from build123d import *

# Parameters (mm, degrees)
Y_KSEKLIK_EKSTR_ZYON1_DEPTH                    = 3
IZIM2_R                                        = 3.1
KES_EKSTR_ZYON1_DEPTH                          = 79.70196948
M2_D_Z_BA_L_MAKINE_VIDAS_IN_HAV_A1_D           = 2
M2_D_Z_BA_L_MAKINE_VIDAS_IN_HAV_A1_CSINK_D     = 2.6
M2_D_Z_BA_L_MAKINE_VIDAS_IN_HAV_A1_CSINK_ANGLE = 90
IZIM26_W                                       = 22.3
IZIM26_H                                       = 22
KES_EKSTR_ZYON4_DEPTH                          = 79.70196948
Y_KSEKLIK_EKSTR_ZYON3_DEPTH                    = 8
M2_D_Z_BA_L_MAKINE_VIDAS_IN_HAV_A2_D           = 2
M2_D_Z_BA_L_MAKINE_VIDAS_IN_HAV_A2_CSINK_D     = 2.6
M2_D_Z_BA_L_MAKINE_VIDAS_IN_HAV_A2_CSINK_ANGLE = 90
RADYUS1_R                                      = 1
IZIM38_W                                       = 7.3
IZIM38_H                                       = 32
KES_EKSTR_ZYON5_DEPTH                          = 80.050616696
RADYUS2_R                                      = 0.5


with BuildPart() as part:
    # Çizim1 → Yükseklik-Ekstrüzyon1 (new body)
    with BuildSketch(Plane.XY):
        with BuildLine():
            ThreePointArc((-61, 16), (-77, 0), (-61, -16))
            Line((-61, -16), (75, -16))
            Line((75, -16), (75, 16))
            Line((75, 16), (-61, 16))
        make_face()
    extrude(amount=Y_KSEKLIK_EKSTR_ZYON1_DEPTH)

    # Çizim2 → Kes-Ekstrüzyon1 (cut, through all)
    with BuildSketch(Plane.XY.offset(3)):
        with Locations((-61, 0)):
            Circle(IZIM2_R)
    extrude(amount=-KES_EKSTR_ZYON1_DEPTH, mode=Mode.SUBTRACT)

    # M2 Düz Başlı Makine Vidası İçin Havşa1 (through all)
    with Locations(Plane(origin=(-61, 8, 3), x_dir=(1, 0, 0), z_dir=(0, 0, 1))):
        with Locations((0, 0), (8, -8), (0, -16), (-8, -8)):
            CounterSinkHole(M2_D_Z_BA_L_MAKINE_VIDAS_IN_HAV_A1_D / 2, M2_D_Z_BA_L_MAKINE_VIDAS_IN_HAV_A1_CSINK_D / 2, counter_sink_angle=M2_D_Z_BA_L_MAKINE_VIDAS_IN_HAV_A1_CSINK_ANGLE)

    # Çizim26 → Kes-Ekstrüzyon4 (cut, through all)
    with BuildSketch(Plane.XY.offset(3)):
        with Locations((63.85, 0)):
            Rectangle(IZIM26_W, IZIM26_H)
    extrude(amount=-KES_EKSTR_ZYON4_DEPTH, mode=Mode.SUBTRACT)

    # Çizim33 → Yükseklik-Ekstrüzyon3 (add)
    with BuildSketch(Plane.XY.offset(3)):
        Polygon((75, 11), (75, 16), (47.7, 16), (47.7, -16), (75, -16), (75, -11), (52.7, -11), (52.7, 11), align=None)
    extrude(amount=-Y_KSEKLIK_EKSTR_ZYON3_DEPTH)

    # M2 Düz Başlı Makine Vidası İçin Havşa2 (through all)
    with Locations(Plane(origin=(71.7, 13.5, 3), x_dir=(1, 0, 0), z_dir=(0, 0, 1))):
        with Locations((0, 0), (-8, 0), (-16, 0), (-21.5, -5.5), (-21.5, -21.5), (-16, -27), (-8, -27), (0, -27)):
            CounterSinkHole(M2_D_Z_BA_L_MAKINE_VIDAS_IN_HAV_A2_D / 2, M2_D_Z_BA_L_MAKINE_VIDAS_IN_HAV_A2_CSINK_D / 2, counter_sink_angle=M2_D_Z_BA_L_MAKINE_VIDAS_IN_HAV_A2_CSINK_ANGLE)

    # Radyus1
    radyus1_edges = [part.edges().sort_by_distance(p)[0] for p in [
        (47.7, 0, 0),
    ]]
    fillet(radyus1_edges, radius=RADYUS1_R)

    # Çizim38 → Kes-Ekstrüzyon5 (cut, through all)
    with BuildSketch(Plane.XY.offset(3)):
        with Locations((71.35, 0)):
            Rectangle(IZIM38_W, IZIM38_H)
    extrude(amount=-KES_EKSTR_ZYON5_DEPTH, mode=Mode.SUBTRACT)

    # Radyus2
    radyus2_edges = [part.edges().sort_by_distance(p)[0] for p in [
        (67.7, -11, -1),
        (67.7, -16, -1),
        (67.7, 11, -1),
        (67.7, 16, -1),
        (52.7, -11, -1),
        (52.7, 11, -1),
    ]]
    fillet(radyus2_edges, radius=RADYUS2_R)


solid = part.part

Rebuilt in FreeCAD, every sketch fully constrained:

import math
import FreeCAD as App
import Part
import Sketcher
Q = App.Units.Quantity


def edges_at(feature, points):
    """Names of the edges that pass closest to the given points."""
    edges = feature.Shape.Edges
    near = lambda p: min(range(len(edges)), key=lambda i: edges[i].distToShape(Part.Vertex(*p))[0])
    return sorted({f"Edge{near(p) + 1}" for p in points})

doc = App.newDocument("Part")
body = doc.addObject("PartDesign::Body", "Body")

# Sketch on XY plane
sketch1 = doc.addObject("Sketcher::SketchObject", "Sketch")
body.addObject(sketch1)
sketch1.AttachmentSupport = (doc.XY_Plane, [""])
sketch1.MapMode = "FlatFace"
sketch1.addGeometry(Part.ArcOfCircle(Part.Circle(App.Vector(-61, 0, 0), App.Vector(0, 0, 1), 16), math.radians(90), math.radians(270)), False)
sketch1.addGeometry(Part.LineSegment(App.Vector(-61, -16, 0), App.Vector(75, -16, 0)), False)
sketch1.addGeometry(Part.LineSegment(App.Vector(75, -16, 0), App.Vector(75, 16, 0)), False)
sketch1.addGeometry(Part.LineSegment(App.Vector(75, 16, 0), App.Vector(-61, 16, 0)), False)
sketch1.addConstraint(Sketcher.Constraint("Tangent", 0, 2, 1, 1))
sketch1.addConstraint(Sketcher.Constraint("Coincident", 1, 2, 2, 1))
sketch1.addConstraint(Sketcher.Constraint("Coincident", 2, 2, 3, 1))
sketch1.addConstraint(Sketcher.Constraint("Tangent", 3, 2, 0, 1))
sketch1.addConstraint(Sketcher.Constraint("Horizontal", 1))
sketch1.addConstraint(Sketcher.Constraint("Vertical", 2))
sketch1.addConstraint(Sketcher.Constraint("Horizontal", 3))
sketch1.addConstraint(Sketcher.Constraint("PointOnObject", 0, 3, -1))
sketch1.addConstraint(Sketcher.Constraint("Radius", 0, Q("16 mm")))
sketch1.addConstraint(Sketcher.Constraint("DistanceX", 1, 1, 1, 2, Q("136 mm")))
sketch1.addConstraint(Sketcher.Constraint("DistanceX", 0, 3, -1, 1, Q("61 mm")))
pad1 = doc.addObject("PartDesign::Pad", "Pad")
body.addObject(pad1)
pad1.Profile = sketch1
pad1.Length = 3

# Sketch on XY plane
sketch2 = doc.addObject("Sketcher::SketchObject", "Sketch001")
body.addObject(sketch2)
sketch2.AttachmentSupport = (doc.XY_Plane, [""])
sketch2.MapMode = "FlatFace"
sketch2.AttachmentOffset = App.Placement(App.Vector(0, 0, 3), App.Rotation())
sketch2.addGeometry(Part.Circle(App.Vector(-61, 0, 0), App.Vector(0, 0, 1), 3.1), False)
sketch2.addConstraint(Sketcher.Constraint("PointOnObject", 0, 3, -1))
sketch2.addConstraint(Sketcher.Constraint("Diameter", 0, Q("6.2 mm")))
sketch2.addConstraint(Sketcher.Constraint("DistanceX", 0, 3, -1, 1, Q("61 mm")))
pocket1 = doc.addObject("PartDesign::Pocket", "Pocket")
body.addObject(pocket1)
pocket1.Profile = sketch2
pocket1.Type = "ThroughAll"

# Sketch on XY plane
sketch3 = doc.addObject("Sketcher::SketchObject", "Sketch002")
body.addObject(sketch3)
sketch3.AttachmentSupport = (doc.XY_Plane, [""])
sketch3.MapMode = "FlatFace"
sketch3.AttachmentOffset = App.Placement(App.Vector(0, 0, 3), App.Rotation())
sketch3.addGeometry(Part.Circle(App.Vector(-61, 8, 0), App.Vector(0, 0, 1), 1), False)
sketch3.addGeometry(Part.Circle(App.Vector(-53, 0, 0), App.Vector(0, 0, 1), 1), False)
sketch3.addGeometry(Part.Circle(App.Vector(-61, -8, 0), App.Vector(0, 0, 1), 1), False)
sketch3.addGeometry(Part.Circle(App.Vector(-69, 0, 0), App.Vector(0, 0, 1), 1), False)
sketch3.addConstraint(Sketcher.Constraint("Equal", 0, 1))
sketch3.addConstraint(Sketcher.Constraint("Equal", 1, 2))
sketch3.addConstraint(Sketcher.Constraint("Equal", 2, 3))
sketch3.addConstraint(Sketcher.Constraint("Symmetric", 0, 3, 2, 3, -1))
sketch3.addConstraint(Sketcher.Constraint("PointOnObject", 1, 3, -1))
sketch3.addConstraint(Sketcher.Constraint("PointOnObject", 3, 3, -1))
sketch3.addConstraint(Sketcher.Constraint("Diameter", 0, Q("2 mm")))
sketch3.addConstraint(Sketcher.Constraint("DistanceX", 0, 3, -1, 1, Q("61 mm")))
sketch3.addConstraint(Sketcher.Constraint("DistanceY", -1, 1, 0, 3, Q("8 mm")))
sketch3.addConstraint(Sketcher.Constraint("DistanceX", 1, 3, -1, 1, Q("53 mm")))
sketch3.addConstraint(Sketcher.Constraint("DistanceX", 3, 3, -1, 1, Q("69 mm")))
doc.recompute()
hole = doc.addObject("PartDesign::Hole", "Hole")
body.addObject(hole)
hole.Profile = sketch3
hole.ThreadType = "None"
hole.Diameter = 2
hole.DepthType = "ThroughAll"
hole.HoleCutType = "Countersink"
hole.HoleCutDiameter = 2.6
hole.HoleCutCountersinkAngle = 90

# Sketch on XY plane
sketch4 = doc.addObject("Sketcher::SketchObject", "Sketch003")
body.addObject(sketch4)
sketch4.AttachmentSupport = (doc.XY_Plane, [""])
sketch4.MapMode = "FlatFace"
sketch4.AttachmentOffset = App.Placement(App.Vector(0, 0, 3), App.Rotation())
sketch4.addGeometry(Part.LineSegment(App.Vector(52.7, 11, 0), App.Vector(52.7, -11, 0)), False)
sketch4.addGeometry(Part.LineSegment(App.Vector(52.7, -11, 0), App.Vector(75, -11, 0)), False)
sketch4.addGeometry(Part.LineSegment(App.Vector(75, -11, 0), App.Vector(75, 11, 0)), False)
sketch4.addGeometry(Part.LineSegment(App.Vector(75, 11, 0), App.Vector(52.7, 11, 0)), False)
sketch4.addConstraint(Sketcher.Constraint("Coincident", 0, 2, 1, 1))
sketch4.addConstraint(Sketcher.Constraint("Coincident", 1, 2, 2, 1))
sketch4.addConstraint(Sketcher.Constraint("Coincident", 2, 2, 3, 1))
sketch4.addConstraint(Sketcher.Constraint("Coincident", 3, 2, 0, 1))
sketch4.addConstraint(Sketcher.Constraint("Vertical", 0))
sketch4.addConstraint(Sketcher.Constraint("Horizontal", 1))
sketch4.addConstraint(Sketcher.Constraint("Vertical", 2))
sketch4.addConstraint(Sketcher.Constraint("Horizontal", 3))
sketch4.addConstraint(Sketcher.Constraint("DistanceY", 0, 2, 0, 1, Q("22 mm")))
sketch4.addConstraint(Sketcher.Constraint("DistanceX", 1, 1, 1, 2, Q("22.3 mm")))
sketch4.addConstraint(Sketcher.Constraint("DistanceY", 0, 2, -1, 1, Q("11 mm")))
sketch4.addConstraint(Sketcher.Constraint("DistanceX", -1, 1, 1, 2, Q("75 mm")))
pocket2 = doc.addObject("PartDesign::Pocket", "Pocket001")
body.addObject(pocket2)
pocket2.Profile = sketch4
pocket2.Type = "ThroughAll"

# Sketch on XY plane
sketch5 = doc.addObject("Sketcher::SketchObject", "Sketch004")
body.addObject(sketch5)
sketch5.AttachmentSupport = (doc.XY_Plane, [""])
sketch5.MapMode = "FlatFace"
sketch5.AttachmentOffset = App.Placement(App.Vector(0, 0, 3), App.Rotation())
sketch5.addGeometry(Part.LineSegment(App.Vector(75, 11, 0), App.Vector(75, 16, 0)), False)
sketch5.addGeometry(Part.LineSegment(App.Vector(75, 16, 0), App.Vector(47.7, 16, 0)), False)
sketch5.addGeometry(Part.LineSegment(App.Vector(47.7, 16, 0), App.Vector(47.7, -16, 0)), False)
sketch5.addGeometry(Part.LineSegment(App.Vector(47.7, -16, 0), App.Vector(75, -16, 0)), False)
sketch5.addGeometry(Part.LineSegment(App.Vector(75, -16, 0), App.Vector(75, -11, 0)), False)
sketch5.addGeometry(Part.LineSegment(App.Vector(75, -11, 0), App.Vector(52.7, -11, 0)), False)
sketch5.addGeometry(Part.LineSegment(App.Vector(52.7, -11, 0), App.Vector(52.7, 11, 0)), False)
sketch5.addGeometry(Part.LineSegment(App.Vector(52.7, 11, 0), App.Vector(75, 11, 0)), False)
sketch5.addConstraint(Sketcher.Constraint("Coincident", 0, 2, 1, 1))
sketch5.addConstraint(Sketcher.Constraint("Coincident", 1, 2, 2, 1))
sketch5.addConstraint(Sketcher.Constraint("Coincident", 2, 2, 3, 1))
sketch5.addConstraint(Sketcher.Constraint("Coincident", 3, 2, 4, 1))
sketch5.addConstraint(Sketcher.Constraint("Coincident", 4, 2, 5, 1))
sketch5.addConstraint(Sketcher.Constraint("Coincident", 5, 2, 6, 1))
sketch5.addConstraint(Sketcher.Constraint("Coincident", 6, 2, 7, 1))
sketch5.addConstraint(Sketcher.Constraint("Coincident", 7, 2, 0, 1))
sketch5.addConstraint(Sketcher.Constraint("Vertical", 0))
sketch5.addConstraint(Sketcher.Constraint("Horizontal", 1))
sketch5.addConstraint(Sketcher.Constraint("Vertical", 2))
sketch5.addConstraint(Sketcher.Constraint("Horizontal", 3))
sketch5.addConstraint(Sketcher.Constraint("Vertical", 4))
sketch5.addConstraint(Sketcher.Constraint("Horizontal", 5))
sketch5.addConstraint(Sketcher.Constraint("Vertical", 6))
sketch5.addConstraint(Sketcher.Constraint("Horizontal", 7))
sketch5.addConstraint(Sketcher.Constraint("Symmetric", 0, 2, 3, 2, -1))
sketch5.addConstraint(Sketcher.Constraint("Equal", 0, 4))
sketch5.addConstraint(Sketcher.Constraint("DistanceY", 0, 1, 0, 2, Q("5 mm")))
sketch5.addConstraint(Sketcher.Constraint("DistanceY", 2, 2, 2, 1, Q("32 mm")))
sketch5.addConstraint(Sketcher.Constraint("DistanceX", 1, 2, 1, 1, Q("27.3 mm")))
sketch5.addConstraint(Sketcher.Constraint("DistanceX", 5, 2, 5, 1, Q("22.3 mm")))
sketch5.addConstraint(Sketcher.Constraint("DistanceX", -1, 1, 0, 2, Q("75 mm")))
pad2 = doc.addObject("PartDesign::Pad", "Pad001")
body.addObject(pad2)
pad2.Profile = sketch5
pad2.Length = 8
pad2.Reversed = True

# Sketch on XY plane
sketch6 = doc.addObject("Sketcher::SketchObject", "Sketch005")
body.addObject(sketch6)
sketch6.AttachmentSupport = (doc.XY_Plane, [""])
sketch6.MapMode = "FlatFace"
sketch6.AttachmentOffset = App.Placement(App.Vector(0, 0, 3), App.Rotation())
sketch6.addGeometry(Part.Circle(App.Vector(71.7, 13.5, 0), App.Vector(0, 0, 1), 1), False)
sketch6.addGeometry(Part.Circle(App.Vector(63.7, 13.5, 0), App.Vector(0, 0, 1), 1), False)
sketch6.addGeometry(Part.Circle(App.Vector(55.7, 13.5, 0), App.Vector(0, 0, 1), 1), False)
sketch6.addGeometry(Part.Circle(App.Vector(50.2, 8, 0), App.Vector(0, 0, 1), 1), False)
sketch6.addGeometry(Part.Circle(App.Vector(50.2, -8, 0), App.Vector(0, 0, 1), 1), False)
sketch6.addGeometry(Part.Circle(App.Vector(55.7, -13.5, 0), App.Vector(0, 0, 1), 1), False)
sketch6.addGeometry(Part.Circle(App.Vector(63.7, -13.5, 0), App.Vector(0, 0, 1), 1), False)
sketch6.addGeometry(Part.Circle(App.Vector(71.7, -13.5, 0), App.Vector(0, 0, 1), 1), False)
sketch6.addConstraint(Sketcher.Constraint("Equal", 0, 1))
sketch6.addConstraint(Sketcher.Constraint("Equal", 1, 2))
sketch6.addConstraint(Sketcher.Constraint("Equal", 2, 3))
sketch6.addConstraint(Sketcher.Constraint("Equal", 3, 4))
sketch6.addConstraint(Sketcher.Constraint("Equal", 4, 5))
sketch6.addConstraint(Sketcher.Constraint("Equal", 5, 6))
sketch6.addConstraint(Sketcher.Constraint("Equal", 6, 7))
sketch6.addConstraint(Sketcher.Constraint("Symmetric", 3, 3, 4, 3, -1))
sketch6.addConstraint(Sketcher.Constraint("Symmetric", 2, 3, 5, 3, -1))
sketch6.addConstraint(Sketcher.Constraint("Symmetric", 1, 3, 6, 3, -1))
sketch6.addConstraint(Sketcher.Constraint("Symmetric", 0, 3, 7, 3, -1))
sketch6.addConstraint(Sketcher.Constraint("Horizontal", 0, 3, 1, 3))
sketch6.addConstraint(Sketcher.Constraint("Horizontal", 1, 3, 2, 3))
sketch6.addConstraint(Sketcher.Constraint("Diameter", 0, Q("2 mm")))
sketch6.addConstraint(Sketcher.Constraint("DistanceY", -1, 1, 3, 3, Q("8 mm")))
sketch6.addConstraint(Sketcher.Constraint("DistanceX", 1, 3, 0, 3, Q("8 mm")))
sketch6.addConstraint(Sketcher.Constraint("DistanceX", 2, 3, 1, 3, Q("8 mm")))
sketch6.addConstraint(Sketcher.Constraint("DistanceY", 5, 3, 2, 3, Q("27 mm")))
sketch6.addConstraint(Sketcher.Constraint("DistanceX", -1, 1, 0, 3, Q("71.7 mm")))
sketch6.addConstraint(Sketcher.Constraint("DistanceX", -1, 1, 3, 3, Q("50.2 mm")))
doc.recompute()
hole2 = doc.addObject("PartDesign::Hole", "Hole001")
body.addObject(hole2)
hole2.Profile = sketch6
hole2.ThreadType = "None"
hole2.Diameter = 2
hole2.DepthType = "ThroughAll"
hole2.HoleCutType = "Countersink"
hole2.HoleCutDiameter = 2.6
hole2.HoleCutCountersinkAngle = 90
doc.recompute()

fillet = doc.addObject("PartDesign::Fillet", "Fillet")
body.addObject(fillet)
fillet.Base = (hole2, edges_at(hole2, [(47.7, 0, 0)]))
fillet.Radius = 1

# Sketch on XY plane
sketch7 = doc.addObject("Sketcher::SketchObject", "Sketch006")
body.addObject(sketch7)
sketch7.AttachmentSupport = (doc.XY_Plane, [""])
sketch7.MapMode = "FlatFace"
sketch7.AttachmentOffset = App.Placement(App.Vector(0, 0, 3), App.Rotation())
sketch7.addGeometry(Part.LineSegment(App.Vector(67.7, 16, 0), App.Vector(67.7, -16, 0)), False)
sketch7.addGeometry(Part.LineSegment(App.Vector(67.7, -16, 0), App.Vector(75, -16, 0)), False)
sketch7.addGeometry(Part.LineSegment(App.Vector(75, -16, 0), App.Vector(75, 16, 0)), False)
sketch7.addGeometry(Part.LineSegment(App.Vector(75, 16, 0), App.Vector(67.7, 16, 0)), False)
sketch7.addConstraint(Sketcher.Constraint("Coincident", 0, 2, 1, 1))
sketch7.addConstraint(Sketcher.Constraint("Coincident", 1, 2, 2, 1))
sketch7.addConstraint(Sketcher.Constraint("Coincident", 2, 2, 3, 1))
sketch7.addConstraint(Sketcher.Constraint("Coincident", 3, 2, 0, 1))
sketch7.addConstraint(Sketcher.Constraint("Vertical", 0))
sketch7.addConstraint(Sketcher.Constraint("Horizontal", 1))
sketch7.addConstraint(Sketcher.Constraint("Vertical", 2))
sketch7.addConstraint(Sketcher.Constraint("Horizontal", 3))
sketch7.addConstraint(Sketcher.Constraint("DistanceY", 0, 2, 0, 1, Q("32 mm")))
sketch7.addConstraint(Sketcher.Constraint("DistanceX", 1, 1, 1, 2, Q("7.3 mm")))
sketch7.addConstraint(Sketcher.Constraint("DistanceY", 0, 2, -1, 1, Q("16 mm")))
sketch7.addConstraint(Sketcher.Constraint("DistanceX", -1, 1, 1, 2, Q("75 mm")))
pocket3 = doc.addObject("PartDesign::Pocket", "Pocket002")
body.addObject(pocket3)
pocket3.Profile = sketch7
pocket3.Type = "ThroughAll"
doc.recompute()

fillet2 = doc.addObject("PartDesign::Fillet", "Fillet001")
body.addObject(fillet2)
fillet2.Base = (pocket3, edges_at(pocket3, [
    (67.7, -11, -1),
    (67.7, -16, -1),
    (67.7, 11, -1),
    (67.7, 16, -1),
    (52.7, -11, -1),
    (52.7, 11, -1),
]))
fillet2.Radius = 0.5

doc.recompute()
